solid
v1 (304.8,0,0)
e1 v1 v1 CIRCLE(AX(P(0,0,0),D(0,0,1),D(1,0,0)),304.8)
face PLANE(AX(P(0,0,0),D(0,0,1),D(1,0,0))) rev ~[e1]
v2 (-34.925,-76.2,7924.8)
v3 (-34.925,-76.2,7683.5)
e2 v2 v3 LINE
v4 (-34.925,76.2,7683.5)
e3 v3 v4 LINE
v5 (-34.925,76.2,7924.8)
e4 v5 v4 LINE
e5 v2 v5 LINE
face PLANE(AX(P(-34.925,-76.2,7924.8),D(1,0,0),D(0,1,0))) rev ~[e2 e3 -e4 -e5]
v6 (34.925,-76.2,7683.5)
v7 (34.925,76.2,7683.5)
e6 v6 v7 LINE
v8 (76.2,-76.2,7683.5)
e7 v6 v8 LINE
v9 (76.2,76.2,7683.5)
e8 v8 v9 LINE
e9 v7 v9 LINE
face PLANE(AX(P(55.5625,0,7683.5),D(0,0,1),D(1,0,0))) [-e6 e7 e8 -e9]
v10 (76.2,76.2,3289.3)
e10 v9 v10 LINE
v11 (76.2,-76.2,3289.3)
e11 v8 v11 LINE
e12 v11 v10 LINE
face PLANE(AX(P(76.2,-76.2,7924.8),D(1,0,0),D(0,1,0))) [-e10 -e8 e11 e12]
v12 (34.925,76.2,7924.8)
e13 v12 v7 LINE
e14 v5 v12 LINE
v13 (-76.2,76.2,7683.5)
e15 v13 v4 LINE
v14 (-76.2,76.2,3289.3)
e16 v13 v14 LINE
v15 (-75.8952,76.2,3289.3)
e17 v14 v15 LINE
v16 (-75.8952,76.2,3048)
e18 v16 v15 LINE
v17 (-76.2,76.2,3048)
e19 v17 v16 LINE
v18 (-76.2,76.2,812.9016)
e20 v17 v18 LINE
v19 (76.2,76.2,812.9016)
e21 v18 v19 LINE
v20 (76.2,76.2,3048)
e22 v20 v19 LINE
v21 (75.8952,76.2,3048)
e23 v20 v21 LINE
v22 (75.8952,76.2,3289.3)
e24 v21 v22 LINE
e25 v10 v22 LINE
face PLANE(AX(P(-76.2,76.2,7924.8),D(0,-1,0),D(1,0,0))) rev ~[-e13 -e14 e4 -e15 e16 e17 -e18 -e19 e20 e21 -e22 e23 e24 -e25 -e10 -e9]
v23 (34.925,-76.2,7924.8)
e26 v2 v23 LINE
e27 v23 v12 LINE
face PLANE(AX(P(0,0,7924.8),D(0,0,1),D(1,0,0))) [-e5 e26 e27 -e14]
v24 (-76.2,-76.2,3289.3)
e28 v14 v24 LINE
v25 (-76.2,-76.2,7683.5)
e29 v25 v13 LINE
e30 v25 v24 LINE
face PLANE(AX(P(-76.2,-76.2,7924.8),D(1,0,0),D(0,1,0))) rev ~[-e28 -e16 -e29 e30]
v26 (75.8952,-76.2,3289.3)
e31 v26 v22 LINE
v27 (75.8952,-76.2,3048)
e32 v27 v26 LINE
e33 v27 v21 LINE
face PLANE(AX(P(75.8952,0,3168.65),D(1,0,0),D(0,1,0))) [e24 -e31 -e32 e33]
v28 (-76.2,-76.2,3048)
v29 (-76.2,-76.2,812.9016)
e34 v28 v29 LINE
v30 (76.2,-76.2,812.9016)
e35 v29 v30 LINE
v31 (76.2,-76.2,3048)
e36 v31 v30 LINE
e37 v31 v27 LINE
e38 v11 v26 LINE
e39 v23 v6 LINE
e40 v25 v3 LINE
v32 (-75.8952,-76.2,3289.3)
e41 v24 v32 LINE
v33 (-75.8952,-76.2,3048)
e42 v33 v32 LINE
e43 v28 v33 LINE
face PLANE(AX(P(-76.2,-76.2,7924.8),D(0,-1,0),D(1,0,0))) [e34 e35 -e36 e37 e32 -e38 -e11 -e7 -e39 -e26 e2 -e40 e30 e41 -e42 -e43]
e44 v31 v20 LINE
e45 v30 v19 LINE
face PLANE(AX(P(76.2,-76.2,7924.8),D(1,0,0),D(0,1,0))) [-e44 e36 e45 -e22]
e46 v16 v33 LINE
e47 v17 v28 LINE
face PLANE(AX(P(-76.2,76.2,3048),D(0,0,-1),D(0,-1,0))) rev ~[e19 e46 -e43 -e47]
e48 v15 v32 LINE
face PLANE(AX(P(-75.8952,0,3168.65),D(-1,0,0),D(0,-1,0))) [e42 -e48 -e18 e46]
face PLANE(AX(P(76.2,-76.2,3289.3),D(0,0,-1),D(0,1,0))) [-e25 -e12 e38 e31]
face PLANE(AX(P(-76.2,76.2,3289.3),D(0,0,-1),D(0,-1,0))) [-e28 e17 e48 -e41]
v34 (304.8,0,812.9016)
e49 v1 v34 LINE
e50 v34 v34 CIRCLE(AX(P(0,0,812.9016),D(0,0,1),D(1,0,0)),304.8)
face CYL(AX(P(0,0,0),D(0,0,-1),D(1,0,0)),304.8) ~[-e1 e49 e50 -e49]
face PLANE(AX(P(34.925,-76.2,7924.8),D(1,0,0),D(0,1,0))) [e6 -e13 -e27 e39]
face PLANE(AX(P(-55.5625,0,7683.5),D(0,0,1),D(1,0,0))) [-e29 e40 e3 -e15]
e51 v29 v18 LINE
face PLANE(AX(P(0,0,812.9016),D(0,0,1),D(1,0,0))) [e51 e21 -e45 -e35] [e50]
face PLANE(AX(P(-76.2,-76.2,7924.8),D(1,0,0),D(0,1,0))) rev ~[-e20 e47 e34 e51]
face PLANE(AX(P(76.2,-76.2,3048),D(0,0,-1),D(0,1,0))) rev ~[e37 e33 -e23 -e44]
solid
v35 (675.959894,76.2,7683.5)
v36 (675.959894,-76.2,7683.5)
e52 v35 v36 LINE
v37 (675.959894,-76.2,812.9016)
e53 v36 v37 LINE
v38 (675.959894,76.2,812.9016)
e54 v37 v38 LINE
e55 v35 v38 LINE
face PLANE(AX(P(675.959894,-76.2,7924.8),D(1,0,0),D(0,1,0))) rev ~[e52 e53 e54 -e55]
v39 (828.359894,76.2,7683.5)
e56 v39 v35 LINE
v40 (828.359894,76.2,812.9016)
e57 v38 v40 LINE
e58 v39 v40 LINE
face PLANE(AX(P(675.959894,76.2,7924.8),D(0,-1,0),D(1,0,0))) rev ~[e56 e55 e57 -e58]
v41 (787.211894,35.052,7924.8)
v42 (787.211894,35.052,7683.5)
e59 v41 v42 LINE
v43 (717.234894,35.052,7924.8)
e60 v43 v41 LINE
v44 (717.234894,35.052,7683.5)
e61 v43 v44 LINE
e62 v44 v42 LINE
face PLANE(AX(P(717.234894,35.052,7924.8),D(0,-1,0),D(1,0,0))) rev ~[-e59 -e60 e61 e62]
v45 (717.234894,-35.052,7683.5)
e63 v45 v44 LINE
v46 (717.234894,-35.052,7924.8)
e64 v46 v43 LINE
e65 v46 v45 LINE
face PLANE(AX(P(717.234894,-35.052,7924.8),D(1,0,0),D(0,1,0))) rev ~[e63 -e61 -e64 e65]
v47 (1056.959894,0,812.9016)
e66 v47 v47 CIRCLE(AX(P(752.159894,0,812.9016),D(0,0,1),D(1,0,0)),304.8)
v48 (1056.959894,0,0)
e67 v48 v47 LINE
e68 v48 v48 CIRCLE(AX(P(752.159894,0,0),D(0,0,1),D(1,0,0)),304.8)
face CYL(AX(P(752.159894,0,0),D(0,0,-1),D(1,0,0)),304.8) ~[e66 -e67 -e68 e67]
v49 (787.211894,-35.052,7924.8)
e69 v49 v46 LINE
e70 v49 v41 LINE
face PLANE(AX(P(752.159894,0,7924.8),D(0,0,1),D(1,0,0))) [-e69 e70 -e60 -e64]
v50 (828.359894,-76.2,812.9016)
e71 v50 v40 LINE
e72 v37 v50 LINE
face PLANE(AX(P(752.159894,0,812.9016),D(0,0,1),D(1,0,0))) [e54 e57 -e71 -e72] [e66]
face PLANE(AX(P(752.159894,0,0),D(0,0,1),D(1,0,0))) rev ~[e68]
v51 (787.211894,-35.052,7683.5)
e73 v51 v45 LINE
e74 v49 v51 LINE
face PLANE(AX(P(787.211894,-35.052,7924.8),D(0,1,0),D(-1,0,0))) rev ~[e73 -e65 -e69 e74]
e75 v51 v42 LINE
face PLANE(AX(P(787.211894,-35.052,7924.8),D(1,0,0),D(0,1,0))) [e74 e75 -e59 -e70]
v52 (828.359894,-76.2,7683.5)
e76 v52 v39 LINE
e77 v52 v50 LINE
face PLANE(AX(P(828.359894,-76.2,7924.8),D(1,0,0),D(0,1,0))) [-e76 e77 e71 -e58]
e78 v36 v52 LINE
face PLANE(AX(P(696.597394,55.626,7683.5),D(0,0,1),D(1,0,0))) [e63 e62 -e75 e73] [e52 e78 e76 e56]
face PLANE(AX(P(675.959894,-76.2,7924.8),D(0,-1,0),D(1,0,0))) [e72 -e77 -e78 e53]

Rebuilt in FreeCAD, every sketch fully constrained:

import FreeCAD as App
import Part
import Sketcher
from FreeCAD import Vector
Q = App.Units.Quantity

doc = App.newDocument("Part")
params = doc.addObject("Spreadsheet::Sheet", "Params")
for row, (alias, value) in enumerate([
    ("sketch1_diameter", "24 in"),
    ("pad1_length", "312 in"),
    ("sketch2_diameter", "24 in"),
    ("sketch2_width", "6 in"),
    ("pocket1_length", "279.996 in"),
    ("sketch3_height", "6 in"),
    ("sketch3_width", "1.625 in"),
    ("pocket2_length", "9.5 in"),
    ("sketch4_width", "6 in"),
    ("sketch4_height", "9.5 in"),
    ("pocket3_length", "0.012 in"),
    ("sketch5_width", "6 in"),
    ("sketch5_height", "9.5 in"),
    ("pocket4_length", "0.012 in"),
    ("sketch6_diameter", "24 in"),
    ("pad2_length", "312 in"),
    ("sketch7_diameter", "24 in"),
    ("sketch7_width", "6 in"),
    ("pocket5_length", "279.996 in"),
    ("sketch8_width", "6 in"),
    ("sketch8_height", "2.76 in"),
    ("sketch8_width2", "2.755 in"),
    ("pocket6_length", "9.5 in"),
], start=1):
    params.set(f"A{row}", alias)
    params.set(f"B{row}", "=" + value)
    params.setAlias(f"B{row}", alias)

body = doc.addObject("PartDesign::Body", "Body")

# Sketch on XY plane
sketch1 = doc.addObject("Sketcher::SketchObject", "Sketch")
body.addObject(sketch1)
sketch1.AttachmentSupport = (doc.XY_Plane, [""])
sketch1.MapMode = "FlatFace"
sketch1.addGeometry(Part.Circle(Vector(0, 0, 0), Vector(0, 0, 1), 305), False)
sketch1.addConstraint(Sketcher.Constraint("Coincident", 0, 3, -1, 1))
sketch1.addConstraint(Sketcher.Constraint("Diameter", 0, Q("24 in")))
sketch1.setExpression("Constraints[1]", "Params.sketch1_diameter")
pad1 = doc.addObject("PartDesign::Pad", "Pad")
body.addObject(pad1)
pad1.Profile = sketch1
pad1.setExpression("Length", "Params.pad1_length")

# Sketch on XY plane
sketch2 = doc.addObject("Sketcher::SketchObject", "Sketch001")
body.addObject(sketch2)
sketch2.AttachmentSupport = (doc.XY_Plane, [""])
sketch2.MapMode = "FlatFace"
sketch2.AttachmentOffset = App.Placement(Vector(0, 0, 312 * 25.4), App.Rotation())
sketch2.addGeometry(Part.Circle(Vector(0, 0, 0), Vector(0, 0, 1), 305), False)
sketch2.addGeometry(Part.LineSegment(Vector(76, -76, 0), Vector(-76, -76, 0)), False)
sketch2.addGeometry(Part.LineSegment(Vector(-76, -76, 0), Vector(-76, 76, 0)), False)
sketch2.addGeometry(Part.LineSegment(Vector(-76, 76, 0), Vector(76, 76, 0)), False)
sketch2.addGeometry(Part.LineSegment(Vector(76, 76, 0), Vector(76, -76, 0)), False)
sketch2.addConstraint(Sketcher.Constraint("Coincident", 1, 2, 2, 1))
sketch2.addConstraint(Sketcher.Constraint("Coincident", 2, 2, 3, 1))
sketch2.addConstraint(Sketcher.Constraint("Coincident", 3, 2, 4, 1))
sketch2.addConstraint(Sketcher.Constraint("Coincident", 4, 2, 1, 1))
sketch2.addConstraint(Sketcher.Constraint("Horizontal", 1))
sketch2.addConstraint(Sketcher.Constraint("Vertical", 2))
sketch2.addConstraint(Sketcher.Constraint("Horizontal", 3))
sketch2.addConstraint(Sketcher.Constraint("Vertical", 4))
sketch2.addConstraint(Sketcher.Constraint("Coincident", 0, 3, -1, 1))
sketch2.addConstraint(Sketcher.Constraint("Symmetric", 1, 2, 3, 2, -1, 1))
sketch2.addConstraint(Sketcher.Constraint("Equal", 3, 2))
sketch2.addConstraint(Sketcher.Constraint("Diameter", 0, Q("24 in")))
sketch2.addConstraint(Sketcher.Constraint("DistanceX", 1, 2, 1, 1, Q("6 in")))
sketch2.setExpression("Constraints[11]", "Params.sketch2_diameter")
sketch2.setExpression("Constraints[12]", "Params.sketch2_width")
pocket1 = doc.addObject("PartDesign::Pocket", "Pocket")
body.addObject(pocket1)
pocket1.Profile = sketch2
pocket1.setExpression("Length", "Params.pocket1_length")

# Sketch on XY plane
sketch3 = doc.addObject("Sketcher::SketchObject", "Sketch002")
body.addObject(sketch3)
sketch3.AttachmentSupport = (doc.XY_Plane, [""])
sketch3.MapMode = "FlatFace"
sketch3.AttachmentOffset = App.Placement(Vector(0, 0, 312 * 25.4), App.Rotation())
sketch3.addGeometry(Part.LineSegment(Vector(-76, 76, 0), Vector(-76, -76, 0)), False)
sketch3.addGeometry(Part.LineSegment(Vector(-76, -76, 0), Vector(-35, -76, 0)), False)
sketch3.addGeometry(Part.LineSegment(Vector(-35, -76, 0), Vector(-35, 76, 0)), False)
sketch3.addGeometry(Part.LineSegment(Vector(-35, 76, 0), Vector(-76, 76, 0)), False)
sketch3.addGeometry(Part.LineSegment(Vector(35, 76, 0), Vector(35, -76, 0)), False)
sketch3.addGeometry(Part.LineSegment(Vector(35, -76, 0), Vector(76, -76, 0)), False)
sketch3.addGeometry(Part.LineSegment(Vector(76, -76, 0), Vector(76, 76, 0)), False)
sketch3.addGeometry(Part.LineSegment(Vector(76, 76, 0), Vector(35, 76, 0)), False)
sketch3.addConstraint(Sketcher.Constraint("Coincident", 0, 2, 1, 1))
sketch3.addConstraint(Sketcher.Constraint("Coincident", 1, 2, 2, 1))
sketch3.addConstraint(Sketcher.Constraint("Coincident", 2, 2, 3, 1))
sketch3.addConstraint(Sketcher.Constraint("Coincident", 3, 2, 0, 1))
sketch3.addConstraint(Sketcher.Constraint("Coincident", 4, 2, 5, 1))
sketch3.addConstraint(Sketcher.Constraint("Coincident", 5, 2, 6, 1))
sketch3.addConstraint(Sketcher.Constraint("Coincident", 6, 2, 7, 1))
sketch3.addConstraint(Sketcher.Constraint("Coincident", 7, 2, 4, 1))
sketch3.addConstraint(Sketcher.Constraint("Vertical", 0))
sketch3.addConstraint(Sketcher.Constraint("Horizontal", 1))
sketch3.addConstraint(Sketcher.Constraint("Vertical", 2))
sketch3.addConstraint(Sketcher.Constraint("Horizontal", 3))
sketch3.addConstraint(Sketcher.Constraint("Vertical", 4))
sketch3.addConstraint(Sketcher.Constraint("Horizontal", 5))
sketch3.addConstraint(Sketcher.Constraint("Vertical", 6))
sketch3.addConstraint(Sketcher.Constraint("Horizontal", 7))
sketch3.addConstraint(Sketcher.Constraint("Symmetric", 2, 2, 4, 2, -1, 1))
sketch3.addConstraint(Sketcher.Constraint("Symmetric", 0, 2, 6, 2, -1, 1))
sketch3.addConstraint(Sketcher.Constraint("Horizontal", 1, 2, 4, 2))
sketch3.addConstraint(Sketcher.Constraint("DistanceY", 0, 2, 0, 1, Q("6 in")))
sketch3.addConstraint(Sketcher.Constraint("DistanceX", 0, 2, -1, 1, Q("3 in")))
sketch3.addConstraint(Sketcher.Constraint("DistanceX", 1, 1, 1, 2, Q("1.625 in")))
sketch3.setExpression("Constraints[19]", "Params.sketch3_height")
sketch3.setExpression("Constraints[21]", "Params.sketch3_width")
pocket2 = doc.addObject("PartDesign::Pocket", "Pocket001")
body.addObject(pocket2)
pocket2.Profile = sketch3
pocket2.setExpression("Length", "Params.pocket2_length")

# Sketch on YZ plane
sketch4 = doc.addObject("Sketcher::SketchObject", "Sketch003")
body.addObject(sketch4)
sketch4.AttachmentSupport = (doc.YZ_Plane, [""])
sketch4.MapMode = "FlatFace"
sketch4.AttachmentOffset = App.Placement(Vector(0, 0, -3 * 25.4), App.Rotation())
sketch4.addGeometry(Part.LineSegment(Vector(76, 3289, 0), Vector(76, 3048, 0)), False)
sketch4.addGeometry(Part.LineSegment(Vector(76, 3048, 0), Vector(-76, 3048, 0)), False)
sketch4.addGeometry(Part.LineSegment(Vector(-76, 3048, 0), Vector(-76, 3289, 0)), False)
sketch4.addGeometry(Part.LineSegment(Vector(-76, 3289, 0), Vector(76, 3289, 0)), False)
sketch4.addConstraint(Sketcher.Constraint("Coincident", 0, 2, 1, 1))
sketch4.addConstraint(Sketcher.Constraint("Coincident", 1, 2, 2, 1))
sketch4.addConstraint(Sketcher.Constraint("Coincident", 2, 2, 3, 1))
sketch4.addConstraint(Sketcher.Constraint("Coincident", 3, 2, 0, 1))
sketch4.addConstraint(Sketcher.Constraint("Vertical", 0))
sketch4.addConstraint(Sketcher.Constraint("Horizontal", 1))
sketch4.addConstraint(Sketcher.Constraint("Vertical", 2))
sketch4.addConstraint(Sketcher.Constraint("Horizontal", 3))
sketch4.addConstraint(Sketcher.Constraint("DistanceX", 1, 2, 1, 1, Q("6 in")))
sketch4.addConstraint(Sketcher.Constraint("DistanceY", 0, 2, 0, 1, Q("9.5 in")))
sketch4.addConstraint(Sketcher.Constraint("DistanceX", -1, 1, 0, 2, Q("3 in")))
sketch4.addConstraint(Sketcher.Constraint("DistanceY", -1, 1, 0, 2, Q("120 in")))
sketch4.setExpression("Constraints[8]", "Params.sketch4_width")
sketch4.setExpression("Constraints[9]", "Params.sketch4_height")
pocket3 = doc.addObject("PartDesign::Pocket", "Pocket002")
body.addObject(pocket3)
pocket3.Profile = sketch4
pocket3.setExpression("Length", "Params.pocket3_length")
pocket3.Reversed = True

# Sketch on YZ plane
sketch5 = doc.addObject("Sketcher::SketchObject", "Sketch004")
body.addObject(sketch5)
sketch5.AttachmentSupport = (doc.YZ_Plane, [""])
sketch5.MapMode = "FlatFace"
sketch5.AttachmentOffset = App.Placement(Vector(0, 0, 3 * 25.4), App.Rotation())
sketch5.addGeometry(Part.LineSegment(Vector(-76, 3289, 0), Vector(-76, 3048, 0)), False)
sketch5.addGeometry(Part.LineSegment(Vector(-76, 3048, 0), Vector(76, 3048, 0)), False)
sketch5.addGeometry(Part.LineSegment(Vector(76, 3048, 0), Vector(76, 3289, 0)), False)
sketch5.addGeometry(Part.LineSegment(Vector(76, 3289, 0), Vector(-76, 3289, 0)), False)
sketch5.addConstraint(Sketcher.Constraint("Coincident", 0, 2, 1, 1))
sketch5.addConstraint(Sketcher.Constraint("Coincident", 1, 2, 2, 1))
sketch5.addConstraint(Sketcher.Constraint("Coincident", 2, 2, 3, 1))
sketch5.addConstraint(Sketcher.Constraint("Coincident", 3, 2, 0, 1))
sketch5.addConstraint(Sketcher.Constraint("Vertical", 0))
sketch5.addConstraint(Sketcher.Constraint("Horizontal", 1))
sketch5.addConstraint(Sketcher.Constraint("Vertical", 2))
sketch5.addConstraint(Sketcher.Constraint("Horizontal", 3))
sketch5.addConstraint(Sketcher.Constraint("DistanceX", 1, 1, 1, 2, Q("6 in")))
sketch5.addConstraint(Sketcher.Constraint("DistanceY", 0, 2, 0, 1, Q("9.5 in")))
sketch5.addConstraint(Sketcher.Constraint("DistanceX", 0, 2, -1, 1, Q("3 in")))
sketch5.addConstraint(Sketcher.Constraint("DistanceY", -1, 1, 0, 2, Q("120 in")))
sketch5.setExpression("Constraints[8]", "Params.sketch5_width")
sketch5.setExpression("Constraints[9]", "Params.sketch5_height")
pocket4 = doc.addObject("PartDesign::Pocket", "Pocket003")
body.addObject(pocket4)
pocket4.Profile = sketch5
pocket4.setExpression("Length", "Params.pocket4_length")
body2 = doc.addObject("PartDesign::Body", "Body001")

# Sketch on XY plane
sketch6 = doc.addObject("Sketcher::SketchObject", "Sketch005")
body2.addObject(sketch6)
sketch6.AttachmentSupport = (doc.getObject("XY_Plane001"), [""])
sketch6.MapMode = "FlatFace"
sketch6.addGeometry(Part.Circle(Vector(752, 0, 0), Vector(0, 0, 1), 305), False)
sketch6.addConstraint(Sketcher.Constraint("PointOnObject", 0, 3, -1))
sketch6.addConstraint(Sketcher.Constraint("Diameter", 0, Q("24 in")))
sketch6.addConstraint(Sketcher.Constraint("DistanceX", -1, 1, 0, 3, 752.159894))
sketch6.setExpression("Constraints[1]", "Params.sketch6_diameter")
pad2 = doc.addObject("PartDesign::Pad", "Pad001")
body2.addObject(pad2)
pad2.Profile = sketch6
pad2.setExpression("Length", "Params.pad2_length")

# Sketch on XY plane
sketch7 = doc.addObject("Sketcher::SketchObject", "Sketch006")
body2.addObject(sketch7)
sketch7.AttachmentSupport = (doc.getObject("XY_Plane001"), [""])
sketch7.MapMode = "FlatFace"
sketch7.AttachmentOffset = App.Placement(Vector(0, 0, 312 * 25.4), App.Rotation())
sketch7.addGeometry(Part.Circle(Vector(752, 0, 0), Vector(0, 0, 1), 305), False)
sketch7.addGeometry(Part.LineSegment(Vector(828, -76, 0), Vector(676, -76, 0)), False)
sketch7.addGeometry(Part.LineSegment(Vector(676, -76, 0), Vector(676, 76, 0)), False)
sketch7.addGeometry(Part.LineSegment(Vector(676, 76, 0), Vector(828, 76, 0)), False)
sketch7.addGeometry(Part.LineSegment(Vector(828, 76, 0), Vector(828, -76, 0)), False)
sketch7.addConstraint(Sketcher.Constraint("Coincident", 1, 2, 2, 1))
sketch7.addConstraint(Sketcher.Constraint("Coincident", 2, 2, 3, 1))
sketch7.addConstraint(Sketcher.Constraint("Coincident", 3, 2, 4, 1))
sketch7.addConstraint(Sketcher.Constraint("Coincident", 4, 2, 1, 1))
sketch7.addConstraint(Sketcher.Constraint("Horizontal", 1))
sketch7.addConstraint(Sketcher.Constraint("Vertical", 2))
sketch7.addConstraint(Sketcher.Constraint("Horizontal", 3))
sketch7.addConstraint(Sketcher.Constraint("Vertical", 4))
sketch7.addConstraint(Sketcher.Constraint("PointOnObject", 0, 3, -1))
sketch7.addConstraint(Sketcher.Constraint("Equal", 3, 2))
sketch7.addConstraint(Sketcher.Constraint("Diameter", 0, Q("24 in")))
sketch7.addConstraint(Sketcher.Constraint("DistanceX", 1, 2, 1, 1, Q("6 in")))
sketch7.addConstraint(Sketcher.Constraint("DistanceY", 1, 2, -1, 1, Q("3 in")))
sketch7.addConstraint(Sketcher.Constraint("DistanceX", 1, 2, 0, 3, Q("3 in")))
sketch7.addConstraint(Sketcher.Constraint("DistanceX", -1, 1, 0, 3, 752.159894))
sketch7.setExpression("Constraints[10]", "Params.sketch7_diameter")
sketch7.setExpression("Constraints[11]", "Params.sketch7_width")
pocket5 = doc.addObject("PartDesign::Pocket", "Pocket004")
body2.addObject(pocket5)
pocket5.Profile = sketch7
pocket5.setExpression("Length", "Params.pocket5_length")

# Sketch on XY plane
sketch8 = doc.addObject("Sketcher::SketchObject", "Sketch007")
body2.addObject(sketch8)
sketch8.AttachmentSupport = (doc.getObject("XY_Plane001"), [""])
sketch8.MapMode = "FlatFace"
sketch8.AttachmentOffset = App.Placement(Vector(0, 0, 312 * 25.4), App.Rotation())
sketch8.addGeometry(Part.LineSegment(Vector(676, -76, 0), Vector(828, -76, 0)), False)
sketch8.addGeometry(Part.LineSegment(Vector(828, -76, 0), Vector(828, 76, 0)), False)
sketch8.addGeometry(Part.LineSegment(Vector(828, 76, 0), Vector(676, 76, 0)), False)
sketch8.addGeometry(Part.LineSegment(Vector(676, 76, 0), Vector(676, -76, 0)), False)
sketch8.addGeometry(Part.LineSegment(Vector(787, 35, 0), Vector(787, -35, 0)), False)
sketch8.addGeometry(Part.LineSegment(Vector(787, -35, 0), Vector(717, -35, 0)), False)
sketch8.addGeometry(Part.LineSegment(Vector(717, -35, 0), Vector(717, 35, 0)), False)
sketch8.addGeometry(Part.LineSegment(Vector(717, 35, 0), Vector(787, 35, 0)), False)
sketch8.addConstraint(Sketcher.Constraint("Coincident", 0, 2, 1, 1))
sketch8.addConstraint(Sketcher.Constraint("Coincident", 1, 2, 2, 1))
sketch8.addConstraint(Sketcher.Constraint("Coincident", 2, 2, 3, 1))
sketch8.addConstraint(Sketcher.Constraint("Coincident", 3, 2, 0, 1))
sketch8.addConstraint(Sketcher.Constraint("Coincident", 4, 2, 5, 1))
sketch8.addConstraint(Sketcher.Constraint("Coincident", 5, 2, 6, 1))
sketch8.addConstraint(Sketcher.Constraint("Coincident", 6, 2, 7, 1))
sketch8.addConstraint(Sketcher.Constraint("Coincident", 7, 2, 4, 1))
sketch8.addConstraint(Sketcher.Constraint("Horizontal", 0))
sketch8.addConstraint(Sketcher.Constraint("Vertical", 1))
sketch8.addConstraint(Sketcher.Constraint("Horizontal", 2))
sketch8.addConstraint(Sketcher.Constraint("Vertical", 3))
sketch8.addConstraint(Sketcher.Constraint("Vertical", 4))
sketch8.addConstraint(Sketcher.Constraint("Horizontal", 5))
sketch8.addConstraint(Sketcher.Constraint("Vertical", 6))
sketch8.addConstraint(Sketcher.Constraint("Horizontal", 7))
sketch8.addConstraint(Sketcher.Constraint("Equal", 2, 1))
sketch8.addConstraint(Sketcher.Constraint("DistanceX", 0, 1, 0, 2, Q("6 in")))
sketch8.addConstraint(Sketcher.Constraint("DistanceY", 0, 2, -1, 1, Q("3 in")))
sketch8.addConstraint(Sketcher.Constraint("DistanceY", 4, 2, 4, 1, Q("2.76 in")))
sketch8.addConstraint(Sketcher.Constraint("DistanceX", 5, 2, 5, 1, Q("2.755 in")))
sketch8.addConstraint(Sketcher.Constraint("DistanceY", 4, 2, -1, 1, Q("1.38 in")))
sketch8.addConstraint(Sketcher.Constraint("DistanceX", 4, 2, 0, 2, Q("1.62 in")))
sketch8.addConstraint(Sketcher.Constraint("DistanceX", -1, 1, 0, 2, 828.359894))
sketch8.setExpression("Constraints[17]", "Params.sketch8_width")
sketch8.setExpression("Constraints[19]", "Params.sketch8_height")
sketch8.setExpression("Constraints[20]", "Params.sketch8_width2")
pocket6 = doc.addObject("PartDesign::Pocket", "Pocket005")
body2.addObject(pocket6)
pocket6.Profile = sketch8
pocket6.setExpression("Length", "Params.pocket6_length")

doc.recompute()
